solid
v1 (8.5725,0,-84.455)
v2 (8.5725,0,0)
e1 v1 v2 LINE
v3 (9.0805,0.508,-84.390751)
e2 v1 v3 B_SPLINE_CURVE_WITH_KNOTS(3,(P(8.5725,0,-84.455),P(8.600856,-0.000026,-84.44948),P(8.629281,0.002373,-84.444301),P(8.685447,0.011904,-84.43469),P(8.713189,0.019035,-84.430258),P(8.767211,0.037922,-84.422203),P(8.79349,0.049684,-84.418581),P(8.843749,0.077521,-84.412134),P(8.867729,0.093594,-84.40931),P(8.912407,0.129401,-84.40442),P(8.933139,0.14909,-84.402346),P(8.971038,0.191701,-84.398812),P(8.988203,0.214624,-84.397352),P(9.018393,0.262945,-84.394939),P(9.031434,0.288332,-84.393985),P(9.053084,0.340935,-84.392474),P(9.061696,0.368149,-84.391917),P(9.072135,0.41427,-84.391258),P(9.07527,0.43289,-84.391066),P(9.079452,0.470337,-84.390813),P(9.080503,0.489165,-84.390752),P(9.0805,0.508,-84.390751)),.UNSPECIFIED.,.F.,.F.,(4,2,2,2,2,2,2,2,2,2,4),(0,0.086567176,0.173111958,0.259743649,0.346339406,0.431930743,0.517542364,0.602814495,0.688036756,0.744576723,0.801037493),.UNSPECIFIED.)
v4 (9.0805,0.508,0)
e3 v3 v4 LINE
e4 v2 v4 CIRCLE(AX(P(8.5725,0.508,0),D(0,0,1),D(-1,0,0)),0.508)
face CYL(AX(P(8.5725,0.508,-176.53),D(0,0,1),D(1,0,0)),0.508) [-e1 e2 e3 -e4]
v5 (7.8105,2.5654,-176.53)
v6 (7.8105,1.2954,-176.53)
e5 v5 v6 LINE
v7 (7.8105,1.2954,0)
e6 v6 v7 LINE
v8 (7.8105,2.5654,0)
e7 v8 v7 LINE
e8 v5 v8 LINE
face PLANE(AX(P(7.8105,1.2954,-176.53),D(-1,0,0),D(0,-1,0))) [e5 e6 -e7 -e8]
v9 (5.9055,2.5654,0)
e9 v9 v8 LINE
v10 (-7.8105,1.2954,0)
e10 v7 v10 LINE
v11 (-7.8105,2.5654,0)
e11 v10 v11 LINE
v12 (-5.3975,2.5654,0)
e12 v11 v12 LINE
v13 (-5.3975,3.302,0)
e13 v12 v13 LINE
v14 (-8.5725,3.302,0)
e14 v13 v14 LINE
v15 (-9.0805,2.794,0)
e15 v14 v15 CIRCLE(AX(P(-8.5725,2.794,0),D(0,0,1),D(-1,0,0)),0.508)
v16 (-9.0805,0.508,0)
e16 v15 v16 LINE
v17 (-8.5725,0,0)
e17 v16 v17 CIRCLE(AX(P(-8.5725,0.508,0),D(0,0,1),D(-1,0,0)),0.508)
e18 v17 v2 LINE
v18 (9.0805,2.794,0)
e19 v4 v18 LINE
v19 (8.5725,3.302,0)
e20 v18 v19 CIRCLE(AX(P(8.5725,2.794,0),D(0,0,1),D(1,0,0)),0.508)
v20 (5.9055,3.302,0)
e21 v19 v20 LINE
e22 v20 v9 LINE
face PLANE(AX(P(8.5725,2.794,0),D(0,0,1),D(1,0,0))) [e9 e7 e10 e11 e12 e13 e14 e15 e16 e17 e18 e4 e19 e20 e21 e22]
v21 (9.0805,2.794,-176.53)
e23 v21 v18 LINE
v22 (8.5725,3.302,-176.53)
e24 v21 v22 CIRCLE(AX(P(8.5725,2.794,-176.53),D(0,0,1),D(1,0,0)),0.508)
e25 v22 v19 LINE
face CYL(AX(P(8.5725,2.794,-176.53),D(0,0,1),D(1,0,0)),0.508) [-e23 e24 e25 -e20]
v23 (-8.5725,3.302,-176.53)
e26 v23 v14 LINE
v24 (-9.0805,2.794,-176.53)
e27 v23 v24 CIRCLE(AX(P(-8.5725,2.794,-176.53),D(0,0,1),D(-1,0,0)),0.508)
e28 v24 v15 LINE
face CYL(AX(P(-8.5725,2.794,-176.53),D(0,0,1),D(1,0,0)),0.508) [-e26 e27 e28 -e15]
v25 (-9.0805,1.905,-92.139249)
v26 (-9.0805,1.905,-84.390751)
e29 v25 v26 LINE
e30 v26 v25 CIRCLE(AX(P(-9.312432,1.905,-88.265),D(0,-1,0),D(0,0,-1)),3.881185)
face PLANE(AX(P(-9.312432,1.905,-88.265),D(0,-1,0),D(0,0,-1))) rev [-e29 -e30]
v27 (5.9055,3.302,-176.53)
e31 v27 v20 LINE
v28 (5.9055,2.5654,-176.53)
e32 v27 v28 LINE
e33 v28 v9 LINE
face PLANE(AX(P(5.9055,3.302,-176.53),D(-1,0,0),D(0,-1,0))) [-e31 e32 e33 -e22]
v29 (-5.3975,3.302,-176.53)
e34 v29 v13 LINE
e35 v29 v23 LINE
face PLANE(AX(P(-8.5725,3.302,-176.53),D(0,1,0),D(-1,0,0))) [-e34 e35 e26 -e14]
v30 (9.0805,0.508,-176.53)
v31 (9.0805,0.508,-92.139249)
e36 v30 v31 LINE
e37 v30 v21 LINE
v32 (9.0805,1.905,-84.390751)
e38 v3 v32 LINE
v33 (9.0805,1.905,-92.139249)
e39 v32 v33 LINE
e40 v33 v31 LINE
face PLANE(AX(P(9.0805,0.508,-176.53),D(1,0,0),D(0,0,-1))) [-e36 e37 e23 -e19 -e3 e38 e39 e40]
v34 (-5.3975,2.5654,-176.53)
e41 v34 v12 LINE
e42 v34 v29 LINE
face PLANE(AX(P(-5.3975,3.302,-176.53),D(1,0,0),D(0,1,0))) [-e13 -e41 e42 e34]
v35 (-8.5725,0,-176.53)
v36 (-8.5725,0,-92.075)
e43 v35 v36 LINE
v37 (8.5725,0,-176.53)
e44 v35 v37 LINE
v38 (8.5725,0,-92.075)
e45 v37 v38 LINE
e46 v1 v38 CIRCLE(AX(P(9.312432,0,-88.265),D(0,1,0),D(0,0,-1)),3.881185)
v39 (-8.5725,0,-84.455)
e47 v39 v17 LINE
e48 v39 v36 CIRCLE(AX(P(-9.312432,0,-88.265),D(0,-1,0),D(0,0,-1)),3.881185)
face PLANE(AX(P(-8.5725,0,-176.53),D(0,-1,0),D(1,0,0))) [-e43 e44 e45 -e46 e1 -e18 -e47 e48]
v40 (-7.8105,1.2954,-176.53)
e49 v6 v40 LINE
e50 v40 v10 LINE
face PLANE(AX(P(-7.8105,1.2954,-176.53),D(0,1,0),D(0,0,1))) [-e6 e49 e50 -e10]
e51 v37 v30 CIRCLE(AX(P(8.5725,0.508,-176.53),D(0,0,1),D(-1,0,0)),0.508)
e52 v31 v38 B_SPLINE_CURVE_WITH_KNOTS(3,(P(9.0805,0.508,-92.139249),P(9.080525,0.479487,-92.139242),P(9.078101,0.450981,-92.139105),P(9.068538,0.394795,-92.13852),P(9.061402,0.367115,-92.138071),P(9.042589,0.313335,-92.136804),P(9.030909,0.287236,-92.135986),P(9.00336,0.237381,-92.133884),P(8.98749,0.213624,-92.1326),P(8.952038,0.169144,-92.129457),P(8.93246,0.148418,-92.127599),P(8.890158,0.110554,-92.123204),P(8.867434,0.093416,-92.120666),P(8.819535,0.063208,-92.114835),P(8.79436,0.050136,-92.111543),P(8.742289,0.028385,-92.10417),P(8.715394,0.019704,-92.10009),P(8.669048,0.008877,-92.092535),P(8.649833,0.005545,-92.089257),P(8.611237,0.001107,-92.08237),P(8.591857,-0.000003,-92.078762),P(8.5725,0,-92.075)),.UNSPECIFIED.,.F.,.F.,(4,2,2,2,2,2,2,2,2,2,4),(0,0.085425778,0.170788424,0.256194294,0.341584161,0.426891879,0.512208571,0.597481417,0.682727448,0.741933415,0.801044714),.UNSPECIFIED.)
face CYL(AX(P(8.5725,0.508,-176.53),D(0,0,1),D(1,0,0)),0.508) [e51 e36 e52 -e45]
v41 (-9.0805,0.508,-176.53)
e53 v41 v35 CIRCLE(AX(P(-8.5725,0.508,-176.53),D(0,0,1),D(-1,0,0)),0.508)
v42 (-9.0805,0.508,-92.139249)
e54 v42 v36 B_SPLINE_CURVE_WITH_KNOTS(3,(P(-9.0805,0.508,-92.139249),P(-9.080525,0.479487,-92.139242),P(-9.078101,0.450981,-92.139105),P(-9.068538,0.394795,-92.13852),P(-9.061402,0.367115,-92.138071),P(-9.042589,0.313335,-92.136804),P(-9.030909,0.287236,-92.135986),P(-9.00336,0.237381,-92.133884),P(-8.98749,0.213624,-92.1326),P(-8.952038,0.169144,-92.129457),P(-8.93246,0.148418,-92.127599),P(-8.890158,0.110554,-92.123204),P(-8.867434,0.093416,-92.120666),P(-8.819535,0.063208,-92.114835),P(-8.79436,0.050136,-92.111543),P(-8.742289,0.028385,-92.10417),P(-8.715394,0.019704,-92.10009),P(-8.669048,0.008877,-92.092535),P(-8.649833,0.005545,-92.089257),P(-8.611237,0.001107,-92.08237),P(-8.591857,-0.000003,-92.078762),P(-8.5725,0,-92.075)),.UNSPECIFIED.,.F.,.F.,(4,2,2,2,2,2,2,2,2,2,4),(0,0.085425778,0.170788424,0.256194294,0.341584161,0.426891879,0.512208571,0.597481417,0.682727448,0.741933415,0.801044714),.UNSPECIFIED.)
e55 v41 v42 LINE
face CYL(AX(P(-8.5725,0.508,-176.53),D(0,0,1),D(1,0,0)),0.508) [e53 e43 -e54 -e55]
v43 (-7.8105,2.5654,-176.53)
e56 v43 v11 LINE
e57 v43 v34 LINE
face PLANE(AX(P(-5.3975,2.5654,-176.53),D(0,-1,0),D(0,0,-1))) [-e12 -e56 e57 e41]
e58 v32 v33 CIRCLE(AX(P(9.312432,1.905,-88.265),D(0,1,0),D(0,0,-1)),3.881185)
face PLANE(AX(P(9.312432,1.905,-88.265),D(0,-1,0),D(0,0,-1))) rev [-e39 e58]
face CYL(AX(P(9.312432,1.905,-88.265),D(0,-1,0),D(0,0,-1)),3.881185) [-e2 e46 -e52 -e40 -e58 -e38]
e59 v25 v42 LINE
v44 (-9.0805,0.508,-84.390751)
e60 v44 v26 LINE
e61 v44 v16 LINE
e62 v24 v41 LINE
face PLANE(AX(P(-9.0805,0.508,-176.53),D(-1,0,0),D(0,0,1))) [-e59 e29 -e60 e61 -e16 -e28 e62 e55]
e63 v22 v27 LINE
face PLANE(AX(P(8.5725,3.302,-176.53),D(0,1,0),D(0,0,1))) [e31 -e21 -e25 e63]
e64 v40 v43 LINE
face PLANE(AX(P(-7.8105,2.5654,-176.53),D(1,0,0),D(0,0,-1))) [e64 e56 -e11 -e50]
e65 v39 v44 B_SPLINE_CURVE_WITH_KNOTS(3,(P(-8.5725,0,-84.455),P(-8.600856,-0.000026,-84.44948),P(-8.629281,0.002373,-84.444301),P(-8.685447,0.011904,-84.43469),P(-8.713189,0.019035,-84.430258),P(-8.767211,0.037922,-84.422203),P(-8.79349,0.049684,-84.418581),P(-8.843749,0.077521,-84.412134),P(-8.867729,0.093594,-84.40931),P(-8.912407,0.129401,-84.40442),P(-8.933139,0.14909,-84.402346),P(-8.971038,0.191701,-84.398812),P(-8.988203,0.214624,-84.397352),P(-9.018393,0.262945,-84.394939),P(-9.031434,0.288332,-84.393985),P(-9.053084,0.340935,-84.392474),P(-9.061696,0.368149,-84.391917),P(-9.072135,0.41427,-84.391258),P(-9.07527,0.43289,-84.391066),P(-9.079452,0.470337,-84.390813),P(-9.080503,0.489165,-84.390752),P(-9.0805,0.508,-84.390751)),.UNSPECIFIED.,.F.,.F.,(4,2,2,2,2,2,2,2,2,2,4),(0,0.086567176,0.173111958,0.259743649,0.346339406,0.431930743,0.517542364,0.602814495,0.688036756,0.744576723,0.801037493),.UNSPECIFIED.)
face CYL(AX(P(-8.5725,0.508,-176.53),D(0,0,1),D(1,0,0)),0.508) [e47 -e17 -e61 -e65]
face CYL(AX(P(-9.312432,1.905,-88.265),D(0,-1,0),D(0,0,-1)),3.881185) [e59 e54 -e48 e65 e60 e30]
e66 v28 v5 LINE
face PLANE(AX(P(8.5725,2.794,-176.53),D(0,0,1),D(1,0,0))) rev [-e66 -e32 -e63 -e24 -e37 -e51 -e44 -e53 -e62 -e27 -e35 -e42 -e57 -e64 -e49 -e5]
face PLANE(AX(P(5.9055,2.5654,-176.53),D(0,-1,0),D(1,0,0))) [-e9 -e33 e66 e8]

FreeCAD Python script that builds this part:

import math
import FreeCAD as App
import Part
import Sketcher

V = App.Vector
Q = App.Units.Quantity

doc = App.newDocument("Part")
params = doc.addObject("Spreadsheet::Sheet", "Params")
for row, (alias, value) in enumerate([
    ("sketch1_radius", "0.02 in"),
    ("sketch1_height", "0.09 in"),
    ("sketch1_height2", "0.05 in"),
    ("sketch1_width", "0.675 in"),
    ("sketch1_width2", "0.105 in"),
    ("pad1_length", "6.95 in"),
    ("sketch2_height", "0.3 in"),
    ("pad2_length", "0.075 in"),
], start=1):
    params.set(f"A{row}", alias)
    params.set(f"B{row}", "=" + value)
    params.setAlias(f"B{row}", alias)

body = doc.addObject("PartDesign::Body", "Body")

# Sketch on XY plane
sketch1 = doc.addObject("Sketcher::SketchObject", "Sketch")
body.addObject(sketch1)
sketch1.AttachmentSupport = (doc.XY_Plane, [""])
sketch1.MapMode = "FlatFace"
sketch1.addGeometry([
    Part.LineSegment(V(-8.5725, 0, 0), V(8.5725, 0, 0)),  # 0
    Part.ArcOfCircle(Part.Circle(V(8.5725, 0.508, 0), V(0, 0, 1), 0.508), math.radians(-90), math.radians(0)),  # 1
    Part.LineSegment(V(9.0805, 0.508, 0), V(9.0805, 2.794, 0)),  # 2
    Part.ArcOfCircle(Part.Circle(V(8.5725, 2.794, 0), V(0, 0, 1), 0.508), math.radians(0), math.radians(90)),  # 3
    Part.LineSegment(V(8.5725, 3.302, 0), V(5.9055, 3.302, 0)),  # 4
    Part.LineSegment(V(5.9055, 3.302, 0), V(5.9055, 2.5654, 0)),  # 5
    Part.LineSegment(V(5.9055, 2.5654, 0), V(7.8105, 2.5654, 0)),  # 6
    Part.LineSegment(V(7.8105, 2.5654, 0), V(7.8105, 1.2954, 0)),  # 7
    Part.LineSegment(V(7.8105, 1.2954, 0), V(-7.8105, 1.2954, 0)),  # 8
    Part.LineSegment(V(-7.8105, 1.2954, 0), V(-7.8105, 2.5654, 0)),  # 9
    Part.LineSegment(V(-7.8105, 2.5654, 0), V(-5.3975, 2.5654, 0)),  # 10
    Part.LineSegment(V(-5.3975, 2.5654, 0), V(-5.3975, 3.302, 0)),  # 11
    Part.LineSegment(V(-5.3975, 3.302, 0), V(-8.5725, 3.302, 0)),  # 12
    Part.ArcOfCircle(Part.Circle(V(-8.5725, 2.794, 0), V(0, 0, 1), 0.508), math.radians(90), math.radians(180)),  # 13
    Part.LineSegment(V(-9.0805, 2.794, 0), V(-9.0805, 0.508, 0)),  # 14
    Part.ArcOfCircle(Part.Circle(V(-8.5725, 0.508, 0), V(0, 0, 1), 0.508), math.radians(180), math.radians(270)),  # 15
], False)
sketch1.addConstraint([
    Sketcher.Constraint("Tangent", 0, 2, 1, 1),
    Sketcher.Constraint("Tangent", 1, 2, 2, 1),
    Sketcher.Constraint("Tangent", 2, 2, 3, 1),
    Sketcher.Constraint("Tangent", 3, 2, 4, 1),
    Sketcher.Constraint("Coincident", 4, 2, 5, 1),
    Sketcher.Constraint("Coincident", 5, 2, 6, 1),
    Sketcher.Constraint("Coincident", 6, 2, 7, 1),
    Sketcher.Constraint("Coincident", 7, 2, 8, 1),
    Sketcher.Constraint("Coincident", 8, 2, 9, 1),
    Sketcher.Constraint("Coincident", 9, 2, 10, 1),
    Sketcher.Constraint("Coincident", 10, 2, 11, 1),
    Sketcher.Constraint("Coincident", 11, 2, 12, 1),
    Sketcher.Constraint("Tangent", 12, 2, 13, 1),
    Sketcher.Constraint("Tangent", 13, 2, 14, 1),
    Sketcher.Constraint("Tangent", 14, 2, 15, 1),
    Sketcher.Constraint("Tangent", 15, 2, 0, 1),
    Sketcher.Constraint("Horizontal", 0),
    Sketcher.Constraint("Vertical", 2),
    Sketcher.Constraint("Horizontal", 4),
    Sketcher.Constraint("Vertical", 5),
    Sketcher.Constraint("Horizontal", 6),
    Sketcher.Constraint("Vertical", 7),
    Sketcher.Constraint("Horizontal", 8),
    Sketcher.Constraint("Vertical", 9),
    Sketcher.Constraint("Horizontal", 10),
    Sketcher.Constraint("Vertical", 11),
    Sketcher.Constraint("Horizontal", 12),
    Sketcher.Constraint("Vertical", 14),
    Sketcher.Constraint("Equal", 1, 3),
    Sketcher.Constraint("Equal", 3, 13),
    Sketcher.Constraint("Equal", 13, 15),
    Sketcher.Constraint("Symmetric", 0, 2, 15, 2, -1, 1),
    Sketcher.Constraint("Symmetric", 6, 2, 9, 2, -2),
    Sketcher.Constraint("Horizontal", 3, 3, 13, 3),
    Sketcher.Constraint("Radius", 1, Q("0.02 in")),
    Sketcher.Constraint("DistanceY", 2, 1, 2, 2, Q("0.09 in")),
    Sketcher.Constraint("DistanceY", 7, 2, 7, 1, Q("0.05 in")),
    Sketcher.Constraint("DistanceX", 0, 1, 0, 2, Q("0.675 in")),
    Sketcher.Constraint("DistanceX", 4, 2, 4, 1, Q("0.105 in")),
    Sketcher.Constraint("DistanceX", 6, 1, 6, 2, Q("0.075 in")),
    Sketcher.Constraint("DistanceX", 10, 1, 10, 2, Q("0.095 in")),
    Sketcher.Constraint("DistanceY", 5, 2, 5, 1, Q("0.029 in")),
])
sketch1.setExpression("Constraints[34]", "Params.sketch1_radius")
sketch1.setExpression("Constraints[35]", "Params.sketch1_height")
sketch1.setExpression("Constraints[36]", "Params.sketch1_height2")
sketch1.setExpression("Constraints[37]", "Params.sketch1_width")
sketch1.setExpression("Constraints[38]", "Params.sketch1_width2")
pad1 = doc.addObject("PartDesign::Pad", "Pad")
body.addObject(pad1)
pad1.Profile = sketch1
pad1.setExpression("Length", "Params.pad1_length")
pad1.Reversed = True

# Sketch on XZ plane
sketch2 = doc.addObject("Sketcher::SketchObject", "Sketch001")
body.addObject(sketch2)
sketch2.AttachmentSupport = (doc.XZ_Plane, [""])
sketch2.MapMode = "FlatFace"
sketch2.addGeometry([
    Part.LineSegment(V(8.5725, -92.075, 0), V(8.5725, -84.455, 0)),
    Part.ArcOfCircle(Part.Circle(V(9.312432, -88.265, 0), V(0, 0, 1), 3.881185), math.radians(-100.990481), math.radians(100.990481)),
], False)
sketch2.addConstraint([
    Sketcher.Constraint("Coincident", 0, 1, 1, 1),
    Sketcher.Constraint("Coincident", 1, 2, 0, 2),
    Sketcher.Constraint("Vertical", 0),
    Sketcher.Constraint("DistanceY", 0, 1, 0, 2, Q("0.3 in")),
    Sketcher.Constraint("DistanceY", 1, 3, -1, 1, Q("3.475 in")),
    Sketcher.Constraint("DistanceX", -1, 1, 0, 1, Q("0.3375 in")),
    Sketcher.Constraint("Radius", 1, Q("3.881185 mm")),
])
sketch2.setExpression("Constraints[3]", "Params.sketch2_height")
pad2 = doc.addObject("PartDesign::Pad", "Pad001")
body.addObject(pad2)
pad2.Profile = sketch2
pad2.setExpression("Length", "Params.pad2_length")
pad2.Reversed = True
doc.recompute()

mirrored = doc.addObject("PartDesign::Mirrored", "Mirrored")
body.addObject(mirrored)
mirrored.Originals = [pad2]
mirrored.MirrorPlane = (doc.YZ_Plane, [""])
body.Tip = mirrored

doc.recompute()
